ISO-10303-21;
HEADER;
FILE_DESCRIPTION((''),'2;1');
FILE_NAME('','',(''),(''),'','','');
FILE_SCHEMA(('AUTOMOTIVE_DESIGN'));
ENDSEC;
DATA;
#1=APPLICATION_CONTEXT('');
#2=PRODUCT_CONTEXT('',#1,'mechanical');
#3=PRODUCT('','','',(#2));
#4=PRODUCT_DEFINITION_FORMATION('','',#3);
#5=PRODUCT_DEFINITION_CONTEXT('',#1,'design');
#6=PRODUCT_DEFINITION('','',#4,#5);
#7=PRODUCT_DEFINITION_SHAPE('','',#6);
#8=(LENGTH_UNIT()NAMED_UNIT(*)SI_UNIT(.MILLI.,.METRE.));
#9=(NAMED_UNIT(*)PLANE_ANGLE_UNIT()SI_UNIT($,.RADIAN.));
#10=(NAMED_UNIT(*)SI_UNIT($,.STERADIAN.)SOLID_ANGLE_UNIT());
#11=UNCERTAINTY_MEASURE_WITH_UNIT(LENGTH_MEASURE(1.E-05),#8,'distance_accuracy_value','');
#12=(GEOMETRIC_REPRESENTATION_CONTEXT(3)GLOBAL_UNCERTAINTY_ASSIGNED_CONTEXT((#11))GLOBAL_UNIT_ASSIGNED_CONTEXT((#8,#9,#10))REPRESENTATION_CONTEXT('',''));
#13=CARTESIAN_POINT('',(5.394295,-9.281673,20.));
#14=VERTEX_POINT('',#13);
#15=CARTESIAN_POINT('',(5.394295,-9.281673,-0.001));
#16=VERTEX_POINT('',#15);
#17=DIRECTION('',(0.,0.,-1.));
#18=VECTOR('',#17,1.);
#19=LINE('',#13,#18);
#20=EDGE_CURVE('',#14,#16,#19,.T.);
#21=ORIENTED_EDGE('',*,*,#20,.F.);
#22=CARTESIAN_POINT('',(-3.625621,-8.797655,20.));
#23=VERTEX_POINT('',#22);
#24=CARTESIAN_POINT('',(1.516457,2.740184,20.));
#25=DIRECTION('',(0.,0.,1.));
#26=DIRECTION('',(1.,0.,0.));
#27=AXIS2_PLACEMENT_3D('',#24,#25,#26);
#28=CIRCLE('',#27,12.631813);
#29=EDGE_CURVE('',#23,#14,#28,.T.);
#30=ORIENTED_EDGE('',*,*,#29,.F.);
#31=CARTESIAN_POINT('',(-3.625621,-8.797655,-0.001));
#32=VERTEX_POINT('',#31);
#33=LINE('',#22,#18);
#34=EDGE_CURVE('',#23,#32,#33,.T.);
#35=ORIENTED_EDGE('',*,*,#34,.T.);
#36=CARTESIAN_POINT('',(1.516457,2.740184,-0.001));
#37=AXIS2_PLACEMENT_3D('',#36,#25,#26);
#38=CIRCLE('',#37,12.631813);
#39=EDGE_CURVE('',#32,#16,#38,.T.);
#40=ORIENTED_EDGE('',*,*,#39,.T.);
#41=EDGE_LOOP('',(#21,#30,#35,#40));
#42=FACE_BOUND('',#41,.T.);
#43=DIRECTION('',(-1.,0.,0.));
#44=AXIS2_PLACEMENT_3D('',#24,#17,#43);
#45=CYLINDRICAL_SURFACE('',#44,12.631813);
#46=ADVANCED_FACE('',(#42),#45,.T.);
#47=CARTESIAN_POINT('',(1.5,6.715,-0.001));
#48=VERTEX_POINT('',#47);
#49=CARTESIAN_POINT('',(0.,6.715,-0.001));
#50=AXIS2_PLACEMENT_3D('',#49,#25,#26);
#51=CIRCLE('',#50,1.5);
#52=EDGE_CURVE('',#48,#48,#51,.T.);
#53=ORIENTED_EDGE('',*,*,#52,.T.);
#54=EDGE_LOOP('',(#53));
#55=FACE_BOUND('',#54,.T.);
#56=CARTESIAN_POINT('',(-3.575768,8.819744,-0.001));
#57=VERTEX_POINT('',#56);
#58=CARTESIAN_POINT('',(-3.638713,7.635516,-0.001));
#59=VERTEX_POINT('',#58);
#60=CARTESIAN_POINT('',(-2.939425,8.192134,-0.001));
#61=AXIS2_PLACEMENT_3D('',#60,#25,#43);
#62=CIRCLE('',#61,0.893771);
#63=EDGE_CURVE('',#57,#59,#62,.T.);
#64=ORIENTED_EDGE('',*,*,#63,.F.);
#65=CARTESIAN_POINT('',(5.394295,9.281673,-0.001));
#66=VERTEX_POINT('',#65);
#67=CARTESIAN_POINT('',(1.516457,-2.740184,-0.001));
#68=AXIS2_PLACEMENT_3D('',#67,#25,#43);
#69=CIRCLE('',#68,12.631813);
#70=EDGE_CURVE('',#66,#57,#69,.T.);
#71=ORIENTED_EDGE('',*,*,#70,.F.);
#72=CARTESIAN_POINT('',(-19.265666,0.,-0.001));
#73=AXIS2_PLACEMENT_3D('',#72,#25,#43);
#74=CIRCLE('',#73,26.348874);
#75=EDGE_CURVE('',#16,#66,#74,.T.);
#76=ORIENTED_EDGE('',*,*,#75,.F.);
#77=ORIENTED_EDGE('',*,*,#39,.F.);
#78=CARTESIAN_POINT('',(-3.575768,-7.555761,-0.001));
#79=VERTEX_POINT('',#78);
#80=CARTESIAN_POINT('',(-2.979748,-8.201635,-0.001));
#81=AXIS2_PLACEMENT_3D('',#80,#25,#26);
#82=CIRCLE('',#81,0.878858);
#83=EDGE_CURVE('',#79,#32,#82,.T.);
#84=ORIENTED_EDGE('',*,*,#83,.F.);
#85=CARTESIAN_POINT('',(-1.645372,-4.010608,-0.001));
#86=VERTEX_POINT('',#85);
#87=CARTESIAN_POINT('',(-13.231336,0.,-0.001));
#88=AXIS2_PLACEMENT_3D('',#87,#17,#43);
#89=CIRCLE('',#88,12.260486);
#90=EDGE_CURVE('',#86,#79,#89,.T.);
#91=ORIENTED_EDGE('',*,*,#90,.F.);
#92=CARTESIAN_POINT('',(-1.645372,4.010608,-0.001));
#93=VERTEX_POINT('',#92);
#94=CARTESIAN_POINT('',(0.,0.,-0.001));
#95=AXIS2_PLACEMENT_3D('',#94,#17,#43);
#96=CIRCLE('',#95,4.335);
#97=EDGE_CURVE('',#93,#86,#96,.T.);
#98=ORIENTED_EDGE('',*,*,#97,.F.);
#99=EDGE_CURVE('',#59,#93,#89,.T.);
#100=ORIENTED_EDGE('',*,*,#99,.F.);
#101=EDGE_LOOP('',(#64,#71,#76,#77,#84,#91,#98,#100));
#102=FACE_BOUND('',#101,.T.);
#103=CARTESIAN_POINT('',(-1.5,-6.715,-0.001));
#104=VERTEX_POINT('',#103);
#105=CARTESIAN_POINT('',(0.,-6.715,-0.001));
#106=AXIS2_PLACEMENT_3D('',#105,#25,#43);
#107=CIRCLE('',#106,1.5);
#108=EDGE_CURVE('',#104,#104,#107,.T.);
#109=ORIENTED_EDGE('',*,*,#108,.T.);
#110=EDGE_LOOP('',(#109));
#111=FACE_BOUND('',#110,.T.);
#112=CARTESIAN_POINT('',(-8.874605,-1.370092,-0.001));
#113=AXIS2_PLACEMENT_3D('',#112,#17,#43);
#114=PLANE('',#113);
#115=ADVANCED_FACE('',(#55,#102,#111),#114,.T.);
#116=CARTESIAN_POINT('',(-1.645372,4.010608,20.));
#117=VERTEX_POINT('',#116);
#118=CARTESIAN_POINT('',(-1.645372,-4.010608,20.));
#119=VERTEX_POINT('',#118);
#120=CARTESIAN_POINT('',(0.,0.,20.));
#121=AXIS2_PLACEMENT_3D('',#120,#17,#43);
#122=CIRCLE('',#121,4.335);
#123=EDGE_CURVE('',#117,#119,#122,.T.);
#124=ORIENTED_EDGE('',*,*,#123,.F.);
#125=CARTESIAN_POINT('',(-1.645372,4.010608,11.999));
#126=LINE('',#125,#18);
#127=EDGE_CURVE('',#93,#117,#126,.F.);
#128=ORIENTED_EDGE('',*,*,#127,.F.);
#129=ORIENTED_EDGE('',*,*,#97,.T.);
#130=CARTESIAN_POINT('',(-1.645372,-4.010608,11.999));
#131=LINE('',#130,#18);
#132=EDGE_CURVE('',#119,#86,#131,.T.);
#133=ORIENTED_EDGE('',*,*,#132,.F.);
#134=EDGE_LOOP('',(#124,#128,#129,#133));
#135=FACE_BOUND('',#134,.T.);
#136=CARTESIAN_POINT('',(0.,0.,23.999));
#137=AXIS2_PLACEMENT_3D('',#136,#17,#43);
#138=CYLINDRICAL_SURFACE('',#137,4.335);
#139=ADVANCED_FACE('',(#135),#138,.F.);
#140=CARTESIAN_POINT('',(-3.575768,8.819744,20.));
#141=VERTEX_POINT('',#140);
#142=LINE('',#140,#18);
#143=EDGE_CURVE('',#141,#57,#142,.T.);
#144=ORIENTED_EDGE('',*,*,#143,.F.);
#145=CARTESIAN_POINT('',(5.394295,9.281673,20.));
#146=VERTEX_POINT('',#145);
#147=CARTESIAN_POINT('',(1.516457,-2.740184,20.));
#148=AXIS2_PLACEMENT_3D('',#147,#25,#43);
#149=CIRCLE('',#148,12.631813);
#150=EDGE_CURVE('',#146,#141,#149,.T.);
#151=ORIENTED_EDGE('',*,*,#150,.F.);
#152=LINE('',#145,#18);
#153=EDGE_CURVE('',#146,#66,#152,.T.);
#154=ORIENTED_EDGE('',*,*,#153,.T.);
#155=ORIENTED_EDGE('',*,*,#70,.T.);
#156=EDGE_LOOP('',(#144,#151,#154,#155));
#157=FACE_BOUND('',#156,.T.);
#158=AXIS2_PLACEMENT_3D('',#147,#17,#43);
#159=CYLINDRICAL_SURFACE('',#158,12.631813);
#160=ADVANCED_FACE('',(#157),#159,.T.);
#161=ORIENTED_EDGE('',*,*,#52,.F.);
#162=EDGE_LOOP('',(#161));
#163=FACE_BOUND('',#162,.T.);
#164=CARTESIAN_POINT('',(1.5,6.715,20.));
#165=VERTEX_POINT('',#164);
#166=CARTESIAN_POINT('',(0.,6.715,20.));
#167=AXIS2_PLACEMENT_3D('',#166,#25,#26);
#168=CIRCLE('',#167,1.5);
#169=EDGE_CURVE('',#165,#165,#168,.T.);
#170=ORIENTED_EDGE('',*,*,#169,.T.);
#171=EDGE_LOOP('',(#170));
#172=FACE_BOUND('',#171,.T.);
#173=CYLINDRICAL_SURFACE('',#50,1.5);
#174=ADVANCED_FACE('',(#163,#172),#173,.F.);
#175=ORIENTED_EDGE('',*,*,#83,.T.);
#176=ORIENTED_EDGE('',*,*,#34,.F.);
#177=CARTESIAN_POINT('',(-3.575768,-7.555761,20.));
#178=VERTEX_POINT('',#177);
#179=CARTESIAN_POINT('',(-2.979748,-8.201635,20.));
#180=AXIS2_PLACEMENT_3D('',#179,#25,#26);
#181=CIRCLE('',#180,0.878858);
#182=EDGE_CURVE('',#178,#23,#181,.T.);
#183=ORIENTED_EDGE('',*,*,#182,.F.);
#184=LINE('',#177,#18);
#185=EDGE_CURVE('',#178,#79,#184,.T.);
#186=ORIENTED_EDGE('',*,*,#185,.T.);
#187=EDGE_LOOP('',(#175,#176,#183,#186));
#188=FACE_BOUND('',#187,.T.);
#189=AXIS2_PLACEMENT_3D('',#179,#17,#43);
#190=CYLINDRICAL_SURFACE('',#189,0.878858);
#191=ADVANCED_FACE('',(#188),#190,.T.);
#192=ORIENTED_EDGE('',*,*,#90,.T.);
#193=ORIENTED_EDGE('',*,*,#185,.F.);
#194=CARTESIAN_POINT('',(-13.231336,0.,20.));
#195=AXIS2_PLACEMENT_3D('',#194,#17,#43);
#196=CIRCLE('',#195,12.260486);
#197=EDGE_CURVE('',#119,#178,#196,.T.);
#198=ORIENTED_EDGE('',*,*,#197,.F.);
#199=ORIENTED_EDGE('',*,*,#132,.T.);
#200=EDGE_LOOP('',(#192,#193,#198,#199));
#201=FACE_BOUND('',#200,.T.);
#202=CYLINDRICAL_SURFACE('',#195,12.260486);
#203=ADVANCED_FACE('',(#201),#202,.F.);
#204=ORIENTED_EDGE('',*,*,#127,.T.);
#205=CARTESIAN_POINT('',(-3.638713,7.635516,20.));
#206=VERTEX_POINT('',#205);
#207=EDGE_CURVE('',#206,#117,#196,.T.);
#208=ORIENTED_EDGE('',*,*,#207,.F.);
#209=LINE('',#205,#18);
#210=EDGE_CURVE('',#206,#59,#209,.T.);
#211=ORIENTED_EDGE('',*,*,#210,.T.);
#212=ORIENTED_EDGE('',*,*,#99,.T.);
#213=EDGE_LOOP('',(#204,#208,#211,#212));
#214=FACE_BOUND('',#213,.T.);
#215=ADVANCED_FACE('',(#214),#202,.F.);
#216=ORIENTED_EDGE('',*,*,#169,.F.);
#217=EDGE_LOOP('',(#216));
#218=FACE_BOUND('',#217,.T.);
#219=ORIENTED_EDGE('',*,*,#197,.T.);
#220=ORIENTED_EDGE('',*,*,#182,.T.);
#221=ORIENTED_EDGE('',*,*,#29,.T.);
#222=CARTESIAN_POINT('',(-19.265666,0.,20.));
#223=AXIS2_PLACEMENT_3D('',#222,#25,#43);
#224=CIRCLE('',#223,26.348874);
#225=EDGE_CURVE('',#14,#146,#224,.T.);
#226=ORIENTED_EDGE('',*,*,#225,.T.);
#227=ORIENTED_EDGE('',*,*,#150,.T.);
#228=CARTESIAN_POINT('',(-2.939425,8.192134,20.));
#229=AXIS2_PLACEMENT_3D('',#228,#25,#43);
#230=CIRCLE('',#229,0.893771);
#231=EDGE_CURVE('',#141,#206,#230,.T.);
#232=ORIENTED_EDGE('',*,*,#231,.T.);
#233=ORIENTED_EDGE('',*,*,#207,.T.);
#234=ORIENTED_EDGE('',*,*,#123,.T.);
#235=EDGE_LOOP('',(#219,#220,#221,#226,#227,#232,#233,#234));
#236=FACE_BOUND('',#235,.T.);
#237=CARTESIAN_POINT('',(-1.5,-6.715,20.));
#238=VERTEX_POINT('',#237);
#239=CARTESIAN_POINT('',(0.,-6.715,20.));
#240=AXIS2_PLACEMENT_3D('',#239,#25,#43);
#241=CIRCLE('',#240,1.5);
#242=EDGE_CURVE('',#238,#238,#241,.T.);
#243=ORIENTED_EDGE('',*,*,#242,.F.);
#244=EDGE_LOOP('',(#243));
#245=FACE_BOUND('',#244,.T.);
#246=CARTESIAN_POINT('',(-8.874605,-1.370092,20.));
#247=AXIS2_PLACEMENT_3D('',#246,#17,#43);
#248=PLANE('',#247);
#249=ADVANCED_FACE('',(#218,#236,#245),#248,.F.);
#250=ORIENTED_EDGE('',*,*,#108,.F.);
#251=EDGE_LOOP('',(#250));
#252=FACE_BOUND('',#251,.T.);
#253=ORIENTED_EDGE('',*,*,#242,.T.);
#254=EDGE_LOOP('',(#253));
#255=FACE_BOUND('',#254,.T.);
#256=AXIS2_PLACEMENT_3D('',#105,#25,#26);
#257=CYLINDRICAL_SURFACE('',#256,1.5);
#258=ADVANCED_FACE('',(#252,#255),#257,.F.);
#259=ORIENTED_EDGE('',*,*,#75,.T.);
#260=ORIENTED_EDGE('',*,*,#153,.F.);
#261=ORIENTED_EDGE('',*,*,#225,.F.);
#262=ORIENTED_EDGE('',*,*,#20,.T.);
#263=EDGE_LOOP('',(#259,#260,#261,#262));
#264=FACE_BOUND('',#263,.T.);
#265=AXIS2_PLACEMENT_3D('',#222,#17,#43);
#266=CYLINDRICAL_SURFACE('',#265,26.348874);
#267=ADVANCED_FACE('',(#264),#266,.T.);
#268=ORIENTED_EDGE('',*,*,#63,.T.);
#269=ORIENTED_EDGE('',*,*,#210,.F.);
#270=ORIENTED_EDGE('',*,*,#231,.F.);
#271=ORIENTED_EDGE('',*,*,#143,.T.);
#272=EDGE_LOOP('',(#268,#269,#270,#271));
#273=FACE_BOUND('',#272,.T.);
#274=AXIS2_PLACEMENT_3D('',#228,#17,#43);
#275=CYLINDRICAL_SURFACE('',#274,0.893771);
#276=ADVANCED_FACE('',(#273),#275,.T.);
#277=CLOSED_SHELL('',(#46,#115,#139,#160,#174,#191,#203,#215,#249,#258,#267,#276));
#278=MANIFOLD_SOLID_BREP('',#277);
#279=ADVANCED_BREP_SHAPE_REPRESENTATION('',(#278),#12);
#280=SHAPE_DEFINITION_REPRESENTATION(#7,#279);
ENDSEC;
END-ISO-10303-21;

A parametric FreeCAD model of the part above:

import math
import FreeCAD as App
import Part
import Sketcher
Q = App.Units.Quantity

doc = App.newDocument("Part")
body = doc.addObject("PartDesign::Body", "Body")

# Sketch on XY plane
sketch1 = body.newObject("Sketcher::SketchObject", "Sketch")
sketch1.AttachmentSupport = (doc.getObject("XY_Plane"), [""])
sketch1.MapMode = "FlatFace"
sketch1.addGeometry([
    Part.ArcOfCircle(Part.Circle(App.Vector(-19.265666, 0, 0), App.Vector(0, 0, 1), 26.348874), math.radians(-20.625654), math.radians(20.625654)),  # 0
    Part.ArcOfCircle(Part.Circle(App.Vector(1.516457, -2.740184, 0), App.Vector(0, 0, 1), 12.631813), math.radians(72.122082), math.radians(113.773806)),  # 1
    Part.ArcOfCircle(Part.Circle(App.Vector(-2.939425, 8.192134, 0), App.Vector(0, 0, 1), 0.893771), math.radians(135.395831), math.radians(218.519017)),  # 2
    Part.ArcOfCircle(Part.Circle(App.Vector(-13.231336, 0, 0), App.Vector(0, 0, 1), 12.260486), math.radians(-38.044209), math.radians(38.519017)),  # 3
    Part.ArcOfCircle(Part.Circle(App.Vector(-2.979748, -8.201635, 0), App.Vector(0, 0, 1), 0.878858), math.radians(132.701212), math.radians(222.701212)),  # 4
    Part.ArcOfCircle(Part.Circle(App.Vector(1.516457, 2.740184, 0), App.Vector(0, 0, 1), 12.631813), math.radians(-114.021136), math.radians(-72.122082)),  # 5
], False)
sketch1.addConstraint([
    Sketcher.Constraint("Coincident", 0, 2, 1, 1),
    Sketcher.Constraint("Coincident", 1, 2, 2, 1),
    Sketcher.Constraint("Tangent", 2, 2, 3, 2),
    Sketcher.Constraint("Coincident", 3, 1, 4, 1),
    Sketcher.Constraint("Coincident", 4, 2, 5, 1),
    Sketcher.Constraint("Coincident", 5, 2, 0, 1),
    Sketcher.Constraint("Equal", 1, 5),
    Sketcher.Constraint("Symmetric", 1, 3, 5, 3, -1),
    Sketcher.Constraint("PointOnObject", 0, 3, -1),
    Sketcher.Constraint("PointOnObject", 3, 3, -1),
    Sketcher.Constraint("Vertical", 1, 2, 3, 1),
    Sketcher.Constraint("Radius", 2, Q("0.893771 mm")),
    Sketcher.Constraint("Radius", 4, Q("0.878858 mm")),
    Sketcher.Constraint("Radius", 0, Q("26.348874 mm")),
    Sketcher.Constraint("Radius", 1, Q("12.631813 mm")),
    Sketcher.Constraint("Radius", 3, Q("12.260486 mm")),
    Sketcher.Constraint("DistanceY", 1, 3, 2, 2, Q("10.375701 mm")),
    Sketcher.Constraint("DistanceY", 3, 1, -1, 1, Q("7.555761 mm")),
    Sketcher.Constraint("DistanceX", 4, 2, -1, 1, Q("3.625621 mm")),
    Sketcher.Constraint("DistanceX", 2, 3, 1, 3, Q("4.455882 mm")),
    Sketcher.Constraint("DistanceX", 0, 3, 2, 3, Q("16.326241 mm")),
    Sketcher.Constraint("DistanceY", 4, 3, 1, 3, Q("5.461451 mm")),
])
pad1 = body.newObject("PartDesign::Pad", "Pad")
pad1.Profile = sketch1
pad1.Type = "TwoLengths"
pad1.Length = 20
pad1.Length2 = 0.001

# Sketch on XY plane
sketch2 = body.newObject("Sketcher::SketchObject", "Sketch001")
sketch2.AttachmentSupport = (doc.getObject("XY_Plane"), [""])
sketch2.MapMode = "FlatFace"
sketch2.AttachmentOffset = App.Placement(App.Vector(0, 0, 20), App.Rotation())
sketch2.addGeometry([
    Part.Circle(App.Vector(0, 6.715, 0), App.Vector(0, 0, 1), 1.5),
    Part.Circle(App.Vector(0, -6.715, 0), App.Vector(0, 0, 1), 1.5),
], False)
sketch2.addConstraint([
    Sketcher.Constraint("Equal", 0, 1),
    Sketcher.Constraint("Symmetric", 0, 3, 1, 3, -1, 1),
    Sketcher.Constraint("PointOnObject", 0, 3, -2),
    Sketcher.Constraint("Diameter", 0, Q("3 mm")),
    Sketcher.Constraint("DistanceY", 1, 3, 0, 3, Q("13.43 mm")),
])
pocket1 = body.newObject("PartDesign::Pocket", "Pocket")
pocket1.Profile = sketch2
pocket1.Type = "ThroughAll"

# Sketch on XY plane
sketch3 = body.newObject("Sketcher::SketchObject", "Sketch002")
sketch3.AttachmentSupport = (doc.getObject("XY_Plane"), [""])
sketch3.MapMode = "FlatFace"
sketch3.AttachmentOffset = App.Placement(App.Vector(0, 0, -0.001), App.Rotation())
sketch3.addGeometry(Part.Circle(App.Vector(0, 0, 0), App.Vector(0, 0, 1), 4.335), False)
sketch3.addConstraint([
    Sketcher.Constraint("Coincident", 0, 3, -1, 1),
    Sketcher.Constraint("Diameter", 0, Q("8.67 mm")),
])
pocket2 = body.newObject("PartDesign::Pocket", "Pocket001")
pocket2.Profile = sketch3
pocket2.Length = 24
pocket2.Reversed = True

doc.recompute()
